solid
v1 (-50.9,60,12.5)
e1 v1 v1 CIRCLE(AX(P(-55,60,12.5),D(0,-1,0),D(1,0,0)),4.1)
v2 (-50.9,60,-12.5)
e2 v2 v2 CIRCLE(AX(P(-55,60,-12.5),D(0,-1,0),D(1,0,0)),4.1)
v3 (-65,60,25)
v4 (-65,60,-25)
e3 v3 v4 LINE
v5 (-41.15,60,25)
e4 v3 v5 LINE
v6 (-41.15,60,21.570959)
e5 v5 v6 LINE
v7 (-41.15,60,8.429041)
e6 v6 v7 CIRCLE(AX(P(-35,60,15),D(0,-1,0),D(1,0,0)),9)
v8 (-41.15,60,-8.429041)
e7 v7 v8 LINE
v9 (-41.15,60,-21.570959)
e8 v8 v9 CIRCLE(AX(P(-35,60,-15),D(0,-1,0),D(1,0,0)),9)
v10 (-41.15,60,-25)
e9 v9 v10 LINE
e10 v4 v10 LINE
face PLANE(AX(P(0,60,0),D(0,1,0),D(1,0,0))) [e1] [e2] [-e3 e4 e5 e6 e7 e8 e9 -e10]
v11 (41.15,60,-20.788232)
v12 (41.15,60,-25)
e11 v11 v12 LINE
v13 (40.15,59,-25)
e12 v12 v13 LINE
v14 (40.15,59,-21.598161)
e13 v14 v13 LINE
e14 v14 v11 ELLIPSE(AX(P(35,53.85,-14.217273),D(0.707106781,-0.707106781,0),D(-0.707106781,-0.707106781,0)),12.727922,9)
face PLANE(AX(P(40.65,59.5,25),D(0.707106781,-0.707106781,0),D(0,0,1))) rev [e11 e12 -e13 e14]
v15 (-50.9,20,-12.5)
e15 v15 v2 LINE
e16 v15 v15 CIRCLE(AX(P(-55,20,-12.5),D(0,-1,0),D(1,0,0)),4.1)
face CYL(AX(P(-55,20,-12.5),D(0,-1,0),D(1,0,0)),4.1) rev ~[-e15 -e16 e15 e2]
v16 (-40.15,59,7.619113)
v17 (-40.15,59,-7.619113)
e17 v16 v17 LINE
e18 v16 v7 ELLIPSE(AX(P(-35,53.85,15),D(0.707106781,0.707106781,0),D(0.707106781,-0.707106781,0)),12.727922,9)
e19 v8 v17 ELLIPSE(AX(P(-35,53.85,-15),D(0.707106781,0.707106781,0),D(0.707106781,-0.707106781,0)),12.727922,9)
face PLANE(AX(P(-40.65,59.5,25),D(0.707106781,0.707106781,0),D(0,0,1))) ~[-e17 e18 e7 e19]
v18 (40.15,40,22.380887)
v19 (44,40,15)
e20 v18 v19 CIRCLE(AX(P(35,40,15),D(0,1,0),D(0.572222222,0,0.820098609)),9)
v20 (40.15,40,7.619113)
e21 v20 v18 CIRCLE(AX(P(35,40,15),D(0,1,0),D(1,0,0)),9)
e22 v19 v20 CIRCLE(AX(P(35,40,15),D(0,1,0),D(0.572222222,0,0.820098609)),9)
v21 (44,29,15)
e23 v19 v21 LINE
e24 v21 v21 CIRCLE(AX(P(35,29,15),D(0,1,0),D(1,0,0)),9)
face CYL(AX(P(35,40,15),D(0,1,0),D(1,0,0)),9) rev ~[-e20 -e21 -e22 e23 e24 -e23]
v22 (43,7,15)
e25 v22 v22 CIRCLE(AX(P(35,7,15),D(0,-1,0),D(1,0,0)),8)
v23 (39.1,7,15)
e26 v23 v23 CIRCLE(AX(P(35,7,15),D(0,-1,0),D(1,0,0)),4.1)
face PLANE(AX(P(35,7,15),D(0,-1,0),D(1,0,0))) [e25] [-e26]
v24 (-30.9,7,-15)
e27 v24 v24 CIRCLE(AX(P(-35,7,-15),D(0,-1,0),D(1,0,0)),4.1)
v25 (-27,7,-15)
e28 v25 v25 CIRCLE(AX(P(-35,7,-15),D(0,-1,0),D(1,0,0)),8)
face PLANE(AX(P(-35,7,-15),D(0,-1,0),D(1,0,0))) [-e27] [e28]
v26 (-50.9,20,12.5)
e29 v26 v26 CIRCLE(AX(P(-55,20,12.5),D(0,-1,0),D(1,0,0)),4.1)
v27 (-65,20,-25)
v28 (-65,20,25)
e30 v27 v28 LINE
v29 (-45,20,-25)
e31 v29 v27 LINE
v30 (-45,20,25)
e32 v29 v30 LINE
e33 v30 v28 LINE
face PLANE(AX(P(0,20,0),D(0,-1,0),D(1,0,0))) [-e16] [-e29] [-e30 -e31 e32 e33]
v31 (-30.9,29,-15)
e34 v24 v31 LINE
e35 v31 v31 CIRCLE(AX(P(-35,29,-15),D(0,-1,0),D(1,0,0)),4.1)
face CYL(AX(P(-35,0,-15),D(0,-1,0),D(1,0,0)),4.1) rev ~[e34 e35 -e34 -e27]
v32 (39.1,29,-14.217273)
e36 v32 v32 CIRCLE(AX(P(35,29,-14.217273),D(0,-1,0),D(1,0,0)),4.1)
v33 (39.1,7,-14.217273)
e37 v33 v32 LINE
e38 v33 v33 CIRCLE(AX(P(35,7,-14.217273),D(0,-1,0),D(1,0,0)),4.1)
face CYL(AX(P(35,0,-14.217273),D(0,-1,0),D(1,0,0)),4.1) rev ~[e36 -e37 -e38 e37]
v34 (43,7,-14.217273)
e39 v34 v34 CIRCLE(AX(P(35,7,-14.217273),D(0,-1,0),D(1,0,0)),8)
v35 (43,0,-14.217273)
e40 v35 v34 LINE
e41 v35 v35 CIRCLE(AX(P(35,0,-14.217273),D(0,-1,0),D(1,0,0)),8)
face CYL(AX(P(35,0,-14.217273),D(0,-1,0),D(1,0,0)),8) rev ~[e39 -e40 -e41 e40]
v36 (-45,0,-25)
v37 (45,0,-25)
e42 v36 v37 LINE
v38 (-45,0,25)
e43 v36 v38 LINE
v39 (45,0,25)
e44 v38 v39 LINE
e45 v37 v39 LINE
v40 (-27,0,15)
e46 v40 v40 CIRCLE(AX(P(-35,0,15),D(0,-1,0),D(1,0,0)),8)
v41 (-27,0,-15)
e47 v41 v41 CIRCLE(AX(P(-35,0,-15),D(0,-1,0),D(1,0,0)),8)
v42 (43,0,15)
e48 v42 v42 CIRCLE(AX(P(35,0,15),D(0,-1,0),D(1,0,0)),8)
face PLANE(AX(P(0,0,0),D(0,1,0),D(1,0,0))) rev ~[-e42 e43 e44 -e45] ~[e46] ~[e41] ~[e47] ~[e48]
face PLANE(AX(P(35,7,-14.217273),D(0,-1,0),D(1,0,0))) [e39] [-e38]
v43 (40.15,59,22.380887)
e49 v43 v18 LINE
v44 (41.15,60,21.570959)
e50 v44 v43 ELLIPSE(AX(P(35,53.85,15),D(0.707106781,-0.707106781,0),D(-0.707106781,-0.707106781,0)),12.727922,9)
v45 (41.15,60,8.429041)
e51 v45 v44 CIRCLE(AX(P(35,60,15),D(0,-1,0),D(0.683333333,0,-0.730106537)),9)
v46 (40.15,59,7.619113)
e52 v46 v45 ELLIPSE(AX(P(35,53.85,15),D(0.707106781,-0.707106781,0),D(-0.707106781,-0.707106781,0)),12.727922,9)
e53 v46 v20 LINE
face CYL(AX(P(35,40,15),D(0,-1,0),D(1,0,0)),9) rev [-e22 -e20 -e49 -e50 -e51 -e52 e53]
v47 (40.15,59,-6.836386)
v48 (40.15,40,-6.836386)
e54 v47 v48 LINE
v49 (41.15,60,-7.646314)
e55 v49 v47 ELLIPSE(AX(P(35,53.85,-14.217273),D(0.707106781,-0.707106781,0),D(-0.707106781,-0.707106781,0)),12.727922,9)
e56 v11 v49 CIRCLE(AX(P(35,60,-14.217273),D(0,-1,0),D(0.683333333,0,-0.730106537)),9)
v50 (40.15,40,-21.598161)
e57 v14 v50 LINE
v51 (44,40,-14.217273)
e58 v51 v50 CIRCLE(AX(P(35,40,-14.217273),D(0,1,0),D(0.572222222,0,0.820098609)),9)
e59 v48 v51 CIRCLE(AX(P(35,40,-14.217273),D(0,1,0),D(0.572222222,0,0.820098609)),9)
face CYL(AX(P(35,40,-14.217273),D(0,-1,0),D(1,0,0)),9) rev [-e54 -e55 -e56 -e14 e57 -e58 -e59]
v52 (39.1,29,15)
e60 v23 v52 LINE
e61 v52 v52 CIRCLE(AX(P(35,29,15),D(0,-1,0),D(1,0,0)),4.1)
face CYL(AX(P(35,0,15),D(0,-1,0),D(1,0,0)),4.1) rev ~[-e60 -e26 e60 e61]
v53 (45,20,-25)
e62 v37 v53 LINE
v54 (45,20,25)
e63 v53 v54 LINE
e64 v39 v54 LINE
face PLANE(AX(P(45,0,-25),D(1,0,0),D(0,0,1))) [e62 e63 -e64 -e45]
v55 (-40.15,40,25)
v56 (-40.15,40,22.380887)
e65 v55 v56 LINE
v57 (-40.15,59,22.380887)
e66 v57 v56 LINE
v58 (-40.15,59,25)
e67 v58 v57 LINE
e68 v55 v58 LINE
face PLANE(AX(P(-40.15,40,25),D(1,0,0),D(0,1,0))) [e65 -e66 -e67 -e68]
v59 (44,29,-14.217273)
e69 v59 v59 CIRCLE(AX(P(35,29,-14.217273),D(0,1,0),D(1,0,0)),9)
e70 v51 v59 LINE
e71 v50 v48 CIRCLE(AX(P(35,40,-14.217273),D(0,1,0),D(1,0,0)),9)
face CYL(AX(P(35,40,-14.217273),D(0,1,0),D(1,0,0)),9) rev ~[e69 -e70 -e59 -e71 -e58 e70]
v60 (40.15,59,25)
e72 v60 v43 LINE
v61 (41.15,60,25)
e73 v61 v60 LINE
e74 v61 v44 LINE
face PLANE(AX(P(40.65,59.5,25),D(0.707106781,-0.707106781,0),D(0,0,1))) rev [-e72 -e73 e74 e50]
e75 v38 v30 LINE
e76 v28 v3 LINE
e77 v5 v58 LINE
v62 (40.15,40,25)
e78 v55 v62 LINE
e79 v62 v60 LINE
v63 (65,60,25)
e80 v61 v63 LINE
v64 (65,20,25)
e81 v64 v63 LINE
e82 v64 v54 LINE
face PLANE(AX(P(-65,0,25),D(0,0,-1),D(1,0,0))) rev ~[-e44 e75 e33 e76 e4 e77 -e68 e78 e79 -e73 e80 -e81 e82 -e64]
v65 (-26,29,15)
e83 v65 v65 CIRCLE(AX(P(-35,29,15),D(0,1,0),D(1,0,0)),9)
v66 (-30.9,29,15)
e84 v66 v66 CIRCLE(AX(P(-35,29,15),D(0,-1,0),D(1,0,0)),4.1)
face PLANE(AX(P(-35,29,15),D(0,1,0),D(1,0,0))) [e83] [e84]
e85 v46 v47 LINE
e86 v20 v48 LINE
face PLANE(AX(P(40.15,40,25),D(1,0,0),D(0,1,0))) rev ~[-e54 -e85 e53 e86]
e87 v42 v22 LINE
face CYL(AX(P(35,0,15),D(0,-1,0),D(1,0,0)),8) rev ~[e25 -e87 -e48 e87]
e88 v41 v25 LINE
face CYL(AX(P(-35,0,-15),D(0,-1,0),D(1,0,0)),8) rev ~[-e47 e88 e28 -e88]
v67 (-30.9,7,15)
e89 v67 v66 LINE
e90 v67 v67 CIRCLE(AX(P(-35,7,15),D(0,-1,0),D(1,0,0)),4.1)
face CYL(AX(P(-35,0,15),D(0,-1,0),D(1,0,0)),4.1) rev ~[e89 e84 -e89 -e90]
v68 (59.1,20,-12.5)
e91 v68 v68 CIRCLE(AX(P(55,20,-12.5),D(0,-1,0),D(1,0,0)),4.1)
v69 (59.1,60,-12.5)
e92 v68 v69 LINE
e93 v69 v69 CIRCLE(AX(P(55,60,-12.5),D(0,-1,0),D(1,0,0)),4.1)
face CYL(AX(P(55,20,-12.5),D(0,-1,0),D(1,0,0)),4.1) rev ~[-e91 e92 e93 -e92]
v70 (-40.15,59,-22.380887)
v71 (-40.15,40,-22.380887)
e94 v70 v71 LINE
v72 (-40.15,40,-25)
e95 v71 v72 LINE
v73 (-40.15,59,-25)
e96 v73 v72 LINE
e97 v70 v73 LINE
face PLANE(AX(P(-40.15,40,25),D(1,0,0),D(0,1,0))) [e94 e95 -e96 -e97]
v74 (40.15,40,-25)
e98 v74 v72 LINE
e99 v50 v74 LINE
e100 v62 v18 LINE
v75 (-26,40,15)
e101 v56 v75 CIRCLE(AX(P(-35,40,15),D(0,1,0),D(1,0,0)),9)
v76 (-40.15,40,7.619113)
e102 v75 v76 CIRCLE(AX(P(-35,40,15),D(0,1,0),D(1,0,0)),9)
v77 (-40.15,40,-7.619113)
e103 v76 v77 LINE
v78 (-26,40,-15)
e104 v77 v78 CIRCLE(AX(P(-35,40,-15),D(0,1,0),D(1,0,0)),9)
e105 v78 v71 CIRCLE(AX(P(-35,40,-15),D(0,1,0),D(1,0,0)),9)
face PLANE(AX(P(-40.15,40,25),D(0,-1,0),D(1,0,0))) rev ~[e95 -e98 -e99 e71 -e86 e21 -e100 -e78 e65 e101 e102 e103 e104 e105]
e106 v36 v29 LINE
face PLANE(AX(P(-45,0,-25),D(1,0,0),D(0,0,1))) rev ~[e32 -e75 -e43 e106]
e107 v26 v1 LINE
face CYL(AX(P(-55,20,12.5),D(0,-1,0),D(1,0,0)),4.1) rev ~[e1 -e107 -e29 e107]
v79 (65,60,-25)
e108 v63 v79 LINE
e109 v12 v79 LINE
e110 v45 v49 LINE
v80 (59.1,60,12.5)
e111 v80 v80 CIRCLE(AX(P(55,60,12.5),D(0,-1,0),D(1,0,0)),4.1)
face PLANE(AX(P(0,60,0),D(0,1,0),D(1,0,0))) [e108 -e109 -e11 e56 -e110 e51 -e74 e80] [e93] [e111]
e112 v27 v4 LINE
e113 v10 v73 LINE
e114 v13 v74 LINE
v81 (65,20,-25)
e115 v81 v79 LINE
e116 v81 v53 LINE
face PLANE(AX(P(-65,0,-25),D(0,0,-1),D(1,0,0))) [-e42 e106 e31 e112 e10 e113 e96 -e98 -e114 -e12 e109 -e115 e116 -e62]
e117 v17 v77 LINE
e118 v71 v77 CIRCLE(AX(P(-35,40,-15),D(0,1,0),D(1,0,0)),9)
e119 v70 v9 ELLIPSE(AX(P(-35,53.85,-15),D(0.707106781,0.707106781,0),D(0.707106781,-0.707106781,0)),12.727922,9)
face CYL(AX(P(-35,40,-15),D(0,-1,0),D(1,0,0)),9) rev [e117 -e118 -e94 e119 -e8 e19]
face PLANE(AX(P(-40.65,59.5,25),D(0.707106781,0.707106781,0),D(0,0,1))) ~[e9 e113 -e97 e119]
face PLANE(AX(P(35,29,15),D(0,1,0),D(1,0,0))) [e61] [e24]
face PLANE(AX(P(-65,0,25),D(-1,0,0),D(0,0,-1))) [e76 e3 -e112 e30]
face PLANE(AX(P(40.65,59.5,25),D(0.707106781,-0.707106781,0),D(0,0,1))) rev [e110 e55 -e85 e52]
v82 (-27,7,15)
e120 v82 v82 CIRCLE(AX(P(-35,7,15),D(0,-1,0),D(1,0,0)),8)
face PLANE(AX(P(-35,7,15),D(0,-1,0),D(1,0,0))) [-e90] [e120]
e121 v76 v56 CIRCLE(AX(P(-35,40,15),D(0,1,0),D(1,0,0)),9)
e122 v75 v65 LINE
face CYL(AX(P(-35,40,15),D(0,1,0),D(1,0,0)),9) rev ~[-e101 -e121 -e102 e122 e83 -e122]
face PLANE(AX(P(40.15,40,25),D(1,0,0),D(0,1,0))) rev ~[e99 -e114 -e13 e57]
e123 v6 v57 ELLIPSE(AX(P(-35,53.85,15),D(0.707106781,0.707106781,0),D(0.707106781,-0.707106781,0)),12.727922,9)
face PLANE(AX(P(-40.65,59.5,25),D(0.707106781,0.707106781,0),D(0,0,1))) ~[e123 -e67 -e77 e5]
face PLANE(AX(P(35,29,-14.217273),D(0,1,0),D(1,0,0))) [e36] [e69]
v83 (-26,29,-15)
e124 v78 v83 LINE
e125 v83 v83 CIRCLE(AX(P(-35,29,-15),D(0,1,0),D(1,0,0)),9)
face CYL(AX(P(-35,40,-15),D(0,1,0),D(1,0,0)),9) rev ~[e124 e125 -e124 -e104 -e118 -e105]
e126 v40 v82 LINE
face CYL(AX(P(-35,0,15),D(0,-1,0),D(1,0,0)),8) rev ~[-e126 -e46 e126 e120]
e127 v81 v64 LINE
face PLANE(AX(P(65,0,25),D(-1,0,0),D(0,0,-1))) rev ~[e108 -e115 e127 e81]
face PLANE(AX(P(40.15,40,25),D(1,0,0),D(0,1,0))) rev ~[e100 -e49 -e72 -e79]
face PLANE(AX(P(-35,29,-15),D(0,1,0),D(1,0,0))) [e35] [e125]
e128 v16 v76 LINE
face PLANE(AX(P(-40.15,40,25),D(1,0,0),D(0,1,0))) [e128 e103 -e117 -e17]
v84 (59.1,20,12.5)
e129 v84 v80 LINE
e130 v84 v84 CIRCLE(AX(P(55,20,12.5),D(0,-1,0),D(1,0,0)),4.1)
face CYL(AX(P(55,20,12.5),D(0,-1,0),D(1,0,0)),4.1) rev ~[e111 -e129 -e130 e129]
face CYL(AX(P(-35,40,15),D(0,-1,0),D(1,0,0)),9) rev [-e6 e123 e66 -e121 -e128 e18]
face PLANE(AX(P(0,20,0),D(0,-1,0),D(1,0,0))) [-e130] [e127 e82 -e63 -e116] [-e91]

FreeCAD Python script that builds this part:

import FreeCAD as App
import Part
import Sketcher

V = App.Vector
Q = App.Units.Quantity


def edges_at(feature, points):
    """Names of the edges that pass closest to the given points."""
    edges = feature.Shape.Edges
    near = lambda p: min(range(len(edges)), key=lambda i: edges[i].distToShape(Part.Vertex(*p))[0])
    return sorted({f"Edge{near(p) + 1}" for p in points})

doc = App.newDocument("Part")
body = doc.addObject("PartDesign::Body", "Body")

# Sketch on XZ plane
sketch1 = doc.addObject("Sketcher::SketchObject", "Sketch")
body.addObject(sketch1)
sketch1.AttachmentSupport = (doc.XZ_Plane, [""])
sketch1.MapMode = "FlatFace"
sketch1.addGeometry(Part.LineSegment(V(-65, -25, 0), V(-65, 25, 0)), False)
sketch1.addGeometry(Part.LineSegment(V(-65, 25, 0), V(65, 25, 0)), False)
sketch1.addGeometry(Part.LineSegment(V(65, 25, 0), V(65, -25, 0)), False)
sketch1.addGeometry(Part.LineSegment(V(65, -25, 0), V(-65, -25, 0)), False)
sketch1.addConstraint(Sketcher.Constraint("Coincident", 0, 2, 1, 1))
sketch1.addConstraint(Sketcher.Constraint("Coincident", 1, 2, 2, 1))
sketch1.addConstraint(Sketcher.Constraint("Coincident", 2, 2, 3, 1))
sketch1.addConstraint(Sketcher.Constraint("Coincident", 3, 2, 0, 1))
sketch1.addConstraint(Sketcher.Constraint("Vertical", 0))
sketch1.addConstraint(Sketcher.Constraint("Horizontal", 1))
sketch1.addConstraint(Sketcher.Constraint("Vertical", 2))
sketch1.addConstraint(Sketcher.Constraint("Horizontal", 3))
sketch1.addConstraint(Sketcher.Constraint("Symmetric", 0, 2, 2, 2, -1, 1))
sketch1.addConstraint(Sketcher.Constraint("DistanceX", 1, 1, 1, 2, Q("130 mm")))
sketch1.addConstraint(Sketcher.Constraint("DistanceY", 0, 1, 0, 2, Q("50 mm")))
pad1 = doc.addObject("PartDesign::Pad", "Pad")
body.addObject(pad1)
pad1.Profile = sketch1
pad1.Length = 60
pad1.Reversed = True

# Sketch on XY plane
sketch2 = doc.addObject("Sketcher::SketchObject", "Sketch001")
body.addObject(sketch2)
sketch2.AttachmentSupport = (doc.XY_Plane, [""])
sketch2.MapMode = "FlatFace"
sketch2.AttachmentOffset = App.Placement(V(0, 0, 25), App.Rotation())
sketch2.addGeometry(Part.LineSegment(V(-40, 80, 0), V(-40, 40, 0)), False)
sketch2.addGeometry(Part.LineSegment(V(-40, 40, 0), V(40, 40, 0)), False)
sketch2.addGeometry(Part.LineSegment(V(40, 40, 0), V(40, 80, 0)), False)
sketch2.addGeometry(Part.LineSegment(V(40, 80, 0), V(-40, 80, 0)), False)
sketch2.addConstraint(Sketcher.Constraint("Coincident", 0, 2, 1, 1))
sketch2.addConstraint(Sketcher.Constraint("Coincident", 1, 2, 2, 1))
sketch2.addConstraint(Sketcher.Constraint("Coincident", 2, 2, 3, 1))
sketch2.addConstraint(Sketcher.Constraint("Coincident", 3, 2, 0, 1))
sketch2.addConstraint(Sketcher.Constraint("Vertical", 0))
sketch2.addConstraint(Sketcher.Constraint("Horizontal", 1))
sketch2.addConstraint(Sketcher.Constraint("Vertical", 2))
sketch2.addConstraint(Sketcher.Constraint("Horizontal", 3))
sketch2.addConstraint(Sketcher.Constraint("DistanceY", 0, 2, 0, 1, Q("40 mm")))
sketch2.addConstraint(Sketcher.Constraint("DistanceX", 1, 1, 1, 2, Q("80.3 mm")))
sketch2.addConstraint(Sketcher.Constraint("DistanceY", -1, 1, 0, 2, Q("40 mm")))
sketch2.addConstraint(Sketcher.Constraint("DistanceX", 0, 2, -1, 1, Q("40.15 mm")))
pocket1 = doc.addObject("PartDesign::Pocket", "Pocket")
body.addObject(pocket1)
pocket1.Profile = sketch2
pocket1.Type = "ThroughAll"

# Sketch on XZ plane
sketch3 = doc.addObject("Sketcher::SketchObject", "Sketch002")
body.addObject(sketch3)
sketch3.AttachmentSupport = (doc.XZ_Plane, [""])
sketch3.MapMode = "FlatFace"
sketch3.addGeometry(Part.Circle(V(-35, 15, 0), V(0, 0, 1), 4.1), False)
sketch3.addGeometry(Part.Circle(V(-35, -15, 0), V(0, 0, 1), 4.1), False)
sketch3.addGeometry(Part.Circle(V(35, -14.2, 0), V(0, 0, 1), 4.1), False)
sketch3.addGeometry(Part.Circle(V(35, 15, 0), V(0, 0, 1), 4.1), False)
sketch3.addConstraint(Sketcher.Constraint("Equal", 0, 1))
sketch3.addConstraint(Sketcher.Constraint("Equal", 1, 2))
sketch3.addConstraint(Sketcher.Constraint("Equal", 2, 3))
sketch3.addConstraint(Sketcher.Constraint("Symmetric", 1, 3, 3, 3, -1, 1))
sketch3.addConstraint(Sketcher.Constraint("Symmetric", 0, 3, 3, 3, -2))
sketch3.addConstraint(Sketcher.Constraint("Vertical", 2, 3, 3, 3))
sketch3.addConstraint(Sketcher.Constraint("Diameter", 0, Q("8.2 mm")))
sketch3.addConstraint(Sketcher.Constraint("DistanceX", 0, 3, -1, 1, Q("35 mm")))
sketch3.addConstraint(Sketcher.Constraint("DistanceY", -1, 1, 0, 3, Q("15 mm")))
sketch3.addConstraint(Sketcher.Constraint("DistanceY", 2, 3, -1, 1, Q("14.217273 mm")))
pocket2 = doc.addObject("PartDesign::Pocket", "Pocket001")
body.addObject(pocket2)
pocket2.Profile = sketch3
pocket2.Type = "ThroughAll"

# Sketch on XZ plane
sketch4 = doc.addObject("Sketcher::SketchObject", "Sketch003")
body.addObject(sketch4)
sketch4.AttachmentSupport = (doc.XZ_Plane, [""])
sketch4.MapMode = "FlatFace"
sketch4.addGeometry(Part.Circle(V(35, 15, 0), V(0, 0, 1), 8), False)
sketch4.addGeometry(Part.Circle(V(35, -14, 0), V(0, 0, 1), 8), False)
sketch4.addGeometry(Part.Circle(V(-35, 15, 0), V(0, 0, 1), 8), False)
sketch4.addGeometry(Part.Circle(V(-35, -15, 0), V(0, 0, 1), 8), False)
sketch4.addConstraint(Sketcher.Constraint("Equal", 0, 1))
sketch4.addConstraint(Sketcher.Constraint("Equal", 1, 2))
sketch4.addConstraint(Sketcher.Constraint("Equal", 2, 3))
sketch4.addConstraint(Sketcher.Constraint("Symmetric", 0, 3, 3, 3, -1, 1))
sketch4.addConstraint(Sketcher.Constraint("Symmetric", 0, 3, 2, 3, -2))
sketch4.addConstraint(Sketcher.Constraint("Vertical", 0, 3, 1, 3))
sketch4.addConstraint(Sketcher.Constraint("Diameter", 0, Q("16 mm")))
sketch4.addConstraint(Sketcher.Constraint("DistanceX", -1, 1, 0, 3, Q("35 mm")))
sketch4.addConstraint(Sketcher.Constraint("DistanceY", -1, 1, 0, 3, Q("15 mm")))
sketch4.addConstraint(Sketcher.Constraint("DistanceY", 1, 3, -1, 1, Q("14.217273 mm")))
pocket3 = doc.addObject("PartDesign::Pocket", "Pocket002")
body.addObject(pocket3)
pocket3.Profile = sketch4
pocket3.Length = 7
doc.recompute()

chamfer = doc.addObject("PartDesign::Chamfer", "Chamfer")
body.addObject(chamfer)
chamfer.Base = (pocket3, edges_at(pocket3, [(40.15, 60, 0), (-40.15, 60, 0)]))
chamfer.Size = 1

# Sketch on XZ plane
sketch5 = doc.addObject("Sketcher::SketchObject", "Sketch004")
body.addObject(sketch5)
sketch5.AttachmentSupport = (doc.XZ_Plane, [""])
sketch5.MapMode = "FlatFace"
sketch5.addGeometry(Part.LineSegment(V(-81, 41, 0), V(-81, -41, 0)), False)
sketch5.addGeometry(Part.LineSegment(V(-81, -41, 0), V(81, -41, 0)), False)
sketch5.addGeometry(Part.LineSegment(V(81, -41, 0), V(81, 41, 0)), False)
sketch5.addGeometry(Part.LineSegment(V(81, 41, 0), V(-81, 41, 0)), False)
sketch5.addGeometry(Part.LineSegment(V(45, -25, 0), V(-45, -25, 0)), False)
sketch5.addGeometry(Part.LineSegment(V(-45, -25, 0), V(-45, 25, 0)), False)
sketch5.addGeometry(Part.LineSegment(V(-45, 25, 0), V(45, 25, 0)), False)
sketch5.addGeometry(Part.LineSegment(V(45, 25, 0), V(45, -25, 0)), False)
sketch5.addConstraint(Sketcher.Constraint("Coincident", 0, 2, 1, 1))
sketch5.addConstraint(Sketcher.Constraint("Coincident", 1, 2, 2, 1))
sketch5.addConstraint(Sketcher.Constraint("Coincident", 2, 2, 3, 1))
sketch5.addConstraint(Sketcher.Constraint("Coincident", 3, 2, 0, 1))
sketch5.addConstraint(Sketcher.Constraint("Coincident", 4, 2, 5, 1))
sketch5.addConstraint(Sketcher.Constraint("Coincident", 5, 2, 6, 1))
sketch5.addConstraint(Sketcher.Constraint("Coincident", 6, 2, 7, 1))
sketch5.addConstraint(Sketcher.Constraint("Coincident", 7, 2, 4, 1))
sketch5.addConstraint(Sketcher.Constraint("Vertical", 0))
sketch5.addConstraint(Sketcher.Constraint("Horizontal", 1))
sketch5.addConstraint(Sketcher.Constraint("Vertical", 2))
sketch5.addConstraint(Sketcher.Constraint("Horizontal", 3))
sketch5.addConstraint(Sketcher.Constraint("Horizontal", 4))
sketch5.addConstraint(Sketcher.Constraint("Vertical", 5))
sketch5.addConstraint(Sketcher.Constraint("Horizontal", 6))
sketch5.addConstraint(Sketcher.Constraint("Vertical", 7))
sketch5.addConstraint(Sketcher.Constraint("Symmetric", 0, 2, 2, 2, -1, 1))
sketch5.addConstraint(Sketcher.Constraint("Symmetric", 4, 2, 6, 2, -1, 1))
sketch5.addConstraint(Sketcher.Constraint("DistanceX", 4, 2, 4, 1, Q("90 mm")))
sketch5.addConstraint(Sketcher.Constraint("DistanceY", 5, 1, 5, 2, Q("50 mm")))
sketch5.addConstraint(Sketcher.Constraint("DistanceX", 1, 1, 1, 2, Q("162.332 mm")))
sketch5.addConstraint(Sketcher.Constraint("DistanceY", 0, 2, 0, 1, Q("82.332 mm")))
pocket4 = doc.addObject("PartDesign::Pocket", "Pocket003")
body.addObject(pocket4)
pocket4.Profile = sketch5
pocket4.Length = 20

# Sketch on XZ plane
sketch6 = doc.addObject("Sketcher::SketchObject", "Sketch005")
body.addObject(sketch6)
sketch6.AttachmentSupport = (doc.XZ_Plane, [""])
sketch6.MapMode = "FlatFace"
sketch6.AttachmentOffset = App.Placement(V(0, 0, -20), App.Rotation())
sketch6.addGeometry(Part.Circle(V(55, -12.5, 0), V(0, 0, 1), 4.1), False)
sketch6.addGeometry(Part.Circle(V(55, 12.5, 0), V(0, 0, 1), 4.1), False)
sketch6.addGeometry(Part.Circle(V(-55, -12.5, 0), V(0, 0, 1), 4.1), False)
sketch6.addGeometry(Part.Circle(V(-55, 12.5, 0), V(0, 0, 1), 4.1), False)
sketch6.addConstraint(Sketcher.Constraint("Equal", 0, 1))
sketch6.addConstraint(Sketcher.Constraint("Equal", 1, 2))
sketch6.addConstraint(Sketcher.Constraint("Equal", 2, 3))
sketch6.addConstraint(Sketcher.Constraint("Symmetric", 1, 3, 2, 3, -1, 1))
sketch6.addConstraint(Sketcher.Constraint("Symmetric", 0, 3, 3, 3, -1, 1))
sketch6.addConstraint(Sketcher.Constraint("Symmetric", 0, 3, 2, 3, -2))
sketch6.addConstraint(Sketcher.Constraint("Diameter", 0, Q("8.2 mm")))
sketch6.addConstraint(Sketcher.Constraint("DistanceX", -1, 1, 0, 3, Q("55 mm")))
sketch6.addConstraint(Sketcher.Constraint("DistanceY", 0, 3, 1, 3, Q("25 mm")))
pocket5 = doc.addObject("PartDesign::Pocket", "Pocket004")
body.addObject(pocket5)
pocket5.Profile = sketch6
pocket5.Type = "ThroughAll"

# Sketch on XZ plane
sketch7 = doc.addObject("Sketcher::SketchObject", "Sketch006")
body.addObject(sketch7)
sketch7.AttachmentSupport = (doc.XZ_Plane, [""])
sketch7.MapMode = "FlatFace"
sketch7.AttachmentOffset = App.Placement(V(0, 0, -40), App.Rotation())
sketch7.addGeometry(Part.Circle(V(35, 15, 0), V(0, 0, 1), 9), False)
sketch7.addGeometry(Part.Circle(V(-35, 15, 0), V(0, 0, 1), 9), False)
sketch7.addGeometry(Part.Circle(V(35, -14, 0), V(0, 0, 1), 9), False)
sketch7.addGeometry(Part.Circle(V(-35, -15, 0), V(0, 0, 1), 9), False)
sketch7.addConstraint(Sketcher.Constraint("Equal", 0, 1))
sketch7.addConstraint(Sketcher.Constraint("Equal", 1, 2))
sketch7.addConstraint(Sketcher.Constraint("Equal", 2, 3))
sketch7.addConstraint(Sketcher.Constraint("Symmetric", 0, 3, 3, 3, -1, 1))
sketch7.addConstraint(Sketcher.Constraint("Symmetric", 0, 3, 1, 3, -2))
sketch7.addConstraint(Sketcher.Constraint("Vertical", 0, 3, 2, 3))
sketch7.addConstraint(Sketcher.Constraint("Diameter", 0, Q("18 mm")))
sketch7.addConstraint(Sketcher.Constraint("DistanceX", -1, 1, 0, 3, Q("35 mm")))
sketch7.addConstraint(Sketcher.Constraint("DistanceY", -1, 1, 0, 3, Q("15 mm")))
sketch7.addConstraint(Sketcher.Constraint("DistanceY", 2, 3, -1, 1, Q("14.217273 mm")))
pocket6 = doc.addObject("PartDesign::Pocket", "Pocket005")
body.addObject(pocket6)
pocket6.Profile = sketch7
pocket6.Type = "TwoLengths"
pocket6.Length = 21
pocket6.Length2 = 11

doc.recompute()
